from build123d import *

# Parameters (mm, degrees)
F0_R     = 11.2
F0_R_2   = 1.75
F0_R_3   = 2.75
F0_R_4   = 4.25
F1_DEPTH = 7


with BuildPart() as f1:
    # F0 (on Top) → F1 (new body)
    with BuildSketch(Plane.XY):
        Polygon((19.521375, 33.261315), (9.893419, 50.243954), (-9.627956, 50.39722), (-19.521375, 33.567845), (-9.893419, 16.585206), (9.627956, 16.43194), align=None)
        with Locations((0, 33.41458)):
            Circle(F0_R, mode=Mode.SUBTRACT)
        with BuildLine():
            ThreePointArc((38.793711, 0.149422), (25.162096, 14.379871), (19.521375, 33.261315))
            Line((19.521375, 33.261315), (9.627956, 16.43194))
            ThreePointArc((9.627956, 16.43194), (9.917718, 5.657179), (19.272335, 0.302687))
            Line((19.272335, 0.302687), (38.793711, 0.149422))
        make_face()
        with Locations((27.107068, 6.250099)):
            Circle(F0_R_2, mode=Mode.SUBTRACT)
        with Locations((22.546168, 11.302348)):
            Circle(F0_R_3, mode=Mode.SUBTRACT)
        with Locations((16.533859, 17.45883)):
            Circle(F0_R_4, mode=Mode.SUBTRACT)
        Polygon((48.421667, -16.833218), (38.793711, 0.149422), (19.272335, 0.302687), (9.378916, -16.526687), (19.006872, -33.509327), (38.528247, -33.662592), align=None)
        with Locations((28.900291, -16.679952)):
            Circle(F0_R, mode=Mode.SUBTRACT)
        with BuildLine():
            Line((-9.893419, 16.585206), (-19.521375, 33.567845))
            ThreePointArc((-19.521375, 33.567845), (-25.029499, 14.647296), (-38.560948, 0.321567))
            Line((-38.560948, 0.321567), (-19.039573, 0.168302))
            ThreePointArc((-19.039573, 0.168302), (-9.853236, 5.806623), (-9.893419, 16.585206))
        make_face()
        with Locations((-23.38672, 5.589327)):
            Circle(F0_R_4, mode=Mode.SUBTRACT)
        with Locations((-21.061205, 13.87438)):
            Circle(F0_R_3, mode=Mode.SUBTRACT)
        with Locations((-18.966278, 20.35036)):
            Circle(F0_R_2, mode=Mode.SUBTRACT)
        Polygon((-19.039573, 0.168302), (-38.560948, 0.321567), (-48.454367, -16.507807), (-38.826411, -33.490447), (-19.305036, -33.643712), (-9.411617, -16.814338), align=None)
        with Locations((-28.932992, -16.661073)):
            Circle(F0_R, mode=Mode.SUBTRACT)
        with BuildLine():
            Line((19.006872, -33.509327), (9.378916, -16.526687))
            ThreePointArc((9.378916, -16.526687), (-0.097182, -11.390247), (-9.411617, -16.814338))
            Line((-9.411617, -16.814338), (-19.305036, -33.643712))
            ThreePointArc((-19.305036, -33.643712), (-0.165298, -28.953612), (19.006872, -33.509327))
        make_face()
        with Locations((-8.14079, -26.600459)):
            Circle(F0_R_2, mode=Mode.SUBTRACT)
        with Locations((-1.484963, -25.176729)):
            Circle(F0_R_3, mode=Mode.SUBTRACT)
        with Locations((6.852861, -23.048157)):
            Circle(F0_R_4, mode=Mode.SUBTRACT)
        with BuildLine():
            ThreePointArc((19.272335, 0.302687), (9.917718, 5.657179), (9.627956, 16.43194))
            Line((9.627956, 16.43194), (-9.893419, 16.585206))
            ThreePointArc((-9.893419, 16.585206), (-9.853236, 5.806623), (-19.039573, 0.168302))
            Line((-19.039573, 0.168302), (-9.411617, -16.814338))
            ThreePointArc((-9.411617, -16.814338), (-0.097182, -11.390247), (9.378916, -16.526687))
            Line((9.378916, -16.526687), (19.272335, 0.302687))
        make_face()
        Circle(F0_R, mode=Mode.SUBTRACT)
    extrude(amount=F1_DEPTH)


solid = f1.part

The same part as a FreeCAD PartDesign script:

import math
import FreeCAD as App
import Part
import Sketcher

doc = App.newDocument("Part")
params = doc.addObject("Spreadsheet::Sheet", "Params")
for row, (alias, value) in enumerate([
    ("sketch1_radius", "42.000001 mm"),
    ("sketch1_diameter", "22.4 mm"),
    ("sketch1_diameter2", "3.5 mm"),
    ("sketch1_diameter3", "5.5 mm"),
    ("sketch1_diameter4", "8.5 mm"),
    ("pad1_length", "7 mm"),
], start=1):
    params.set(f"A{row}", alias)
    params.set(f"B{row}", "=" + value)
    params.setAlias(f"B{row}", alias)

body = doc.addObject("PartDesign::Body", "Body")

sketch1 = body.newObject("Sketcher::SketchObject", "Sketch")
sketch1.AttachmentSupport = (doc.getObject("XY_Plane"), [""])
sketch1.MapMode = "FlatFace"
sketch1.addGeometry([
    Part.LineSegment(App.Vector(19.521375, 33.261315, 0), App.Vector(9.893419, 50.243954, 0)),
    Part.LineSegment(App.Vector(9.893419, 50.243954, 0), App.Vector(-9.627956, 50.39722, 0)),
    Part.LineSegment(App.Vector(-9.627956, 50.39722, 0), App.Vector(-19.521375, 33.567845, 0)),
    Part.ArcOfCircle(Part.Circle(App.Vector(-61.476009, 35.519587, 0), App.Vector(0, 0, 1), 42.000007), math.radians(-56.934558), math.radians(-2.663496)),
    Part.LineSegment(App.Vector(-38.560948, 0.321567, 0), App.Vector(-48.454367, -16.507807, 0)),
    Part.LineSegment(App.Vector(-48.454367, -16.507807, 0), App.Vector(-38.826411, -33.490447, 0)),
    Part.LineSegment(App.Vector(-38.826411, -33.490447, 0), App.Vector(-19.305036, -33.643712, 0)),
    Part.ArcOfCircle(Part.Circle(App.Vector(-0.017977, -70.953354, 0), App.Vector(0, 0, 1), 42.000001), math.radians(63.065437), math.radians(117.336509)),
    Part.LineSegment(App.Vector(19.006872, -33.509327, 0), App.Vector(38.528247, -33.662592, 0)),
    Part.LineSegment(App.Vector(38.528247, -33.662592, 0), App.Vector(48.421667, -16.833218, 0)),
    Part.LineSegment(App.Vector(48.421667, -16.833218, 0), App.Vector(38.793711, 0.149422, 0)),
    Part.ArcOfCircle(Part.Circle(App.Vector(61.46128, 35.507328, 0), App.Vector(0, 0, 1), 42.000003), math.radians(-176.93456), math.radians(-122.663491)),
    Part.Circle(App.Vector(-28.932992, -16.661073, 0), App.Vector(0, 0, 1), 11.2),
    Part.Circle(App.Vector(-8.14079, -26.600459, 0), App.Vector(0, 0, 1), 1.75),
    Part.Circle(App.Vector(-1.484963, -25.176729, 0), App.Vector(0, 0, 1), 2.75),
    Part.Circle(App.Vector(-23.38672, 5.589327, 0), App.Vector(0, 0, 1), 4.25),
    Part.Circle(App.Vector(6.852861, -23.048157, 0), App.Vector(0, 0, 1), 4.25),
    Part.Circle(App.Vector(28.900291, -16.679952, 0), App.Vector(0, 0, 1), 11.2),
    Part.Circle(App.Vector(0, 0, 0), App.Vector(0, 0, 1), 11.2),
    Part.Circle(App.Vector(27.107068, 6.250099, 0), App.Vector(0, 0, 1), 1.75),
    Part.Circle(App.Vector(-21.061205, 13.87438, 0), App.Vector(0, 0, 1), 2.75),
    Part.Circle(App.Vector(-18.966278, 20.35036, 0), App.Vector(0, 0, 1), 1.75),
    Part.Circle(App.Vector(16.533859, 17.45883, 0), App.Vector(0, 0, 1), 4.25),
    Part.Circle(App.Vector(22.546168, 11.302348, 0), App.Vector(0, 0, 1), 2.75),
    Part.Circle(App.Vector(0, 33.41458, 0), App.Vector(0, 0, 1), 11.2),
], False)
sketch1.addConstraint([
    Sketcher.Constraint("Coincident", 0, 2, 1, 1),
    Sketcher.Constraint("Coincident", 1, 2, 2, 1),
    Sketcher.Constraint("Coincident", 2, 2, 3, 2),
    Sketcher.Constraint("Coincident", 3, 1, 4, 1),
    Sketcher.Constraint("Coincident", 4, 2, 5, 1),
    Sketcher.Constraint("Coincident", 5, 2, 6, 1),
    Sketcher.Constraint("Coincident", 6, 2, 7, 2),
    Sketcher.Constraint("Coincident", 7, 1, 8, 1),
    Sketcher.Constraint("Coincident", 8, 2, 9, 1),
    Sketcher.Constraint("Coincident", 9, 2, 10, 1),
    Sketcher.Constraint("Coincident", 10, 2, 11, 2),
    Sketcher.Constraint("Coincident", 11, 1, 0, 1),
    Sketcher.Constraint("Coincident", 18, 3, -1, 1),
    Sketcher.Constraint("Equal", 15, 16),
    Sketcher.Constraint("Equal", 12, 17),
    Sketcher.Constraint("Equal", 17, 18),
    Sketcher.Constraint("Equal", 13, 19),
    Sketcher.Constraint("Equal", 14, 20),
    Sketcher.Constraint("Equal", 19, 21),
    Sketcher.Constraint("Equal", 16, 22),
    Sketcher.Constraint("Equal", 20, 23),
    Sketcher.Constraint("Equal", 18, 24),
    Sketcher.Constraint("PointOnObject", 24, 3, -2),
    Sketcher.Constraint("Parallel", 2, 4),
    Sketcher.Constraint("Parallel", 0, 5),
    Sketcher.Constraint("Parallel", 1, 6),
    Sketcher.Constraint("Parallel", 6, 8),
    Sketcher.Constraint("Parallel", 4, 9),
    Sketcher.Constraint("Parallel", 5, 10),
    Sketcher.Constraint("Equal", 0, 1),
    Sketcher.Constraint("Equal", 1, 2),
    Sketcher.Constraint("Equal", 2, 4),
    Sketcher.Constraint("Equal", 4, 5),
    Sketcher.Constraint("Equal", 5, 6),
    Sketcher.Constraint("Equal", 6, 8),
    Sketcher.Constraint("Equal", 8, 9),
    Sketcher.Constraint("Equal", 9, 10),
    Sketcher.Constraint("Radius", 7, 42.000001),
    Sketcher.Constraint("Diameter", 12, 22.4),
    Sketcher.Constraint("Diameter", 13, 3.5),
    Sketcher.Constraint("Diameter", 14, 5.5),
    Sketcher.Constraint("Diameter", 15, 8.5),
    Sketcher.Constraint("Radius", 3, 42.000007),
    Sketcher.Constraint("Radius", 11, 42.000003),
    Sketcher.Constraint("DistanceY", -1, 1, 19, 3, 6.250099),
    Sketcher.Constraint("DistanceY", 12, 3, 11, 3, 52.168401),
    Sketcher.Constraint("DistanceX", 12, 3, 13, 3, 20.792202),
    Sketcher.Constraint("DistanceY", 12, 3, 15, 3, 22.2504),
    Sketcher.Constraint("DistanceX", 23, 3, 19, 3, 4.5609),
    Sketcher.Constraint("DistanceY", 17, 3, 23, 3, 27.9823),
    Sketcher.Constraint("DistanceY", 20, 3, 24, 3, 19.5402),
    Sketcher.Constraint("DistanceX", 19, 3, 9, 2, 21.314599),
    Sketcher.Constraint("DistanceX", 3, 3, -1, 1, 61.476009),
    Sketcher.Constraint("DistanceX", -1, 1, 11, 3, 61.46128),
    Sketcher.Constraint("DistanceY", -1, 1, 11, 3, 35.507328),
    Sketcher.Constraint("DistanceX", 12, 3, -1, 1, 28.932992),
    Sketcher.Constraint("DistanceY", 13, 3, -1, 1, 26.600459),
    Sketcher.Constraint("DistanceY", 14, 3, -1, 1, 25.176729),
    Sketcher.Constraint("DistanceX", 15, 3, -1, 1, 23.38672),
    Sketcher.Constraint("DistanceX", -1, 1, 16, 3, 6.852861),
    Sketcher.Constraint("DistanceX", -1, 1, 17, 3, 28.900291),
    Sketcher.Constraint("DistanceY", 17, 3, -1, 1, 16.679952),
    Sketcher.Constraint("DistanceX", -1, 1, 19, 3, 27.107068),
    Sketcher.Constraint("DistanceY", -1, 1, 20, 3, 13.87438),
    Sketcher.Constraint("DistanceY", -1, 1, 21, 3, 20.35036),
    Sketcher.Constraint("DistanceX", -1, 1, 22, 3, 16.533859),
    Sketcher.Constraint("DistanceY", -1, 1, 22, 3, 17.45883),
    Sketcher.Constraint("DistanceX", -1, 1, 0, 2, 9.893419),
    Sketcher.Constraint("DistanceY", -1, 1, 1, 2, 50.39722),
    Sketcher.Constraint("DistanceX", 5, 2, -1, 1, 38.826411),
    Sketcher.Constraint("DistanceY", 8, 2, -1, 1, 33.662592),
    Sketcher.Constraint("DistanceX", -1, 1, 10, 2, 38.793711),
    Sketcher.Constraint("DistanceY", 7, 3, 3, 3, 106.472941),
    Sketcher.Constraint("DistanceX", 12, 3, 14, 3, 27.448029),
    Sketcher.Constraint("DistanceX", 3, 3, 21, 3, 42.509731),
    Sketcher.Constraint("DistanceX", 20, 3, 1, 2, 11.433249),
    Sketcher.Constraint("DistanceY", 7, 1, 16, 3, 10.46117),
])
sketch1.setExpression("Constraints[37]", "Params.sketch1_radius")
sketch1.setExpression("Constraints[38]", "Params.sketch1_diameter")
sketch1.setExpression("Constraints[39]", "Params.sketch1_diameter2")
sketch1.setExpression("Constraints[40]", "Params.sketch1_diameter3")
sketch1.setExpression("Constraints[41]", "Params.sketch1_diameter4")
pad1 = body.newObject("PartDesign::Pad", "Pad")
pad1.Profile = sketch1
pad1.setExpression("Length", "Params.pad1_length")

doc.recompute()
